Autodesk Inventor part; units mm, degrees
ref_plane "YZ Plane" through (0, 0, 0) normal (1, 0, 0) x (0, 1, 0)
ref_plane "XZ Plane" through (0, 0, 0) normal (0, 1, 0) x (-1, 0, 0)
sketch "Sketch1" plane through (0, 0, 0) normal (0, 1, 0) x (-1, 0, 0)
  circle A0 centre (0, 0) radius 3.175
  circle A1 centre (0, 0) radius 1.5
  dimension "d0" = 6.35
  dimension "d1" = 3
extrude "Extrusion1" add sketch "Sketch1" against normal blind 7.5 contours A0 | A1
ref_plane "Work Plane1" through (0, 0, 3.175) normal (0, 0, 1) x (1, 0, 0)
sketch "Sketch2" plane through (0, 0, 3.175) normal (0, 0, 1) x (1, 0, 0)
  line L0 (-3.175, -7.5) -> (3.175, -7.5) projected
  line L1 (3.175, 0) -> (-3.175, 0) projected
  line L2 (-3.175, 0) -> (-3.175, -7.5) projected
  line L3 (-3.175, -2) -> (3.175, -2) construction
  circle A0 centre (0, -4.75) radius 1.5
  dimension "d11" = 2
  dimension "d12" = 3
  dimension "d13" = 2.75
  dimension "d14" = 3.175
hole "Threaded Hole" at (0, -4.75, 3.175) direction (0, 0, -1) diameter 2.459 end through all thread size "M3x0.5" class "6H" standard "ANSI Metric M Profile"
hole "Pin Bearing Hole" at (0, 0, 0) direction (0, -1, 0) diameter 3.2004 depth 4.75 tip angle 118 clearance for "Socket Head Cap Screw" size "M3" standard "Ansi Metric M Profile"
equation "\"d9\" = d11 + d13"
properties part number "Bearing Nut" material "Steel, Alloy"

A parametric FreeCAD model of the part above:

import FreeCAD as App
import Part
import Sketcher
from FreeCAD import Vector
Q = App.Units.Quantity

doc = App.newDocument("Part")
body = doc.addObject("PartDesign::Body", "Body")

sketch1 = body.newObject("Sketcher::SketchObject", "Sketch")
sketch1.AttachmentSupport = (doc.getObject("XZ_Plane"), [""])
sketch1.MapMode = "FlatFace"
sketch1.addGeometry(Part.Circle(Vector(0, 0, 0), Vector(0, 0, 1), 3.2), False)
sketch1.addConstraint(Sketcher.Constraint("Coincident", 0, 3, -1, 1))
sketch1.addConstraint(Sketcher.Constraint("Diameter", 0, Q("0.25 in")))
pad1 = body.newObject("PartDesign::Pad", "Pad")
pad1.Profile = sketch1
pad1.Length = 7.5

sketch2 = body.newObject("Sketcher::SketchObject", "Sketch001")
sketch2.AttachmentSupport = (doc.getObject("XY_Plane"), [""])
sketch2.MapMode = "FlatFace"
sketch2.AttachmentOffset = App.Placement(Vector(0, 0, 0.125 * 25.4), App.Rotation())
sketch2.addGeometry(Part.Circle(Vector(0, -4.8, 0), Vector(0, 0, 1), 1.2), False)
sketch2.addConstraint(Sketcher.Constraint("PointOnObject", 0, 3, -2))
sketch2.addConstraint(Sketcher.Constraint("Diameter", 0, Q("0.0968 in")))
sketch2.addConstraint(Sketcher.Constraint("DistanceY", 0, 3, -1, 1, Q("0.187 in")))
doc.recompute()
hole = body.newObject("PartDesign::Hole", "Hole")
hole.Profile = sketch2
hole.ThreadType = "None"
hole.Diameter = Q("0.096811 in")
hole.DepthType = "ThroughAll"

sketch3 = body.newObject("Sketcher::SketchObject", "Sketch002")
sketch3.AttachmentSupport = (doc.getObject("XZ_Plane"), [""])
sketch3.MapMode = "FlatFace"
sketch3.addGeometry(Part.Circle(Vector(0, 0, 0), Vector(0, 0, 1), 1.6), False)
sketch3.addConstraint(Sketcher.Constraint("Coincident", 0, 3, -1, 1))
sketch3.addConstraint(Sketcher.Constraint("Diameter", 0, Q("0.126 in")))
doc.recompute()
hole2 = body.newObject("PartDesign::Hole", "Hole001")
hole2.Profile = sketch3
hole2.ThreadType = "None"
hole2.Diameter = Q("0.126 in")
hole2.DepthType = "Dimension"
hole2.Depth = Q("0.1870079 in")
hole2.DrillPoint = "Angled"
hole2.DrillPointAngle = 118
hole2.Reversed = True

doc.recompute()
